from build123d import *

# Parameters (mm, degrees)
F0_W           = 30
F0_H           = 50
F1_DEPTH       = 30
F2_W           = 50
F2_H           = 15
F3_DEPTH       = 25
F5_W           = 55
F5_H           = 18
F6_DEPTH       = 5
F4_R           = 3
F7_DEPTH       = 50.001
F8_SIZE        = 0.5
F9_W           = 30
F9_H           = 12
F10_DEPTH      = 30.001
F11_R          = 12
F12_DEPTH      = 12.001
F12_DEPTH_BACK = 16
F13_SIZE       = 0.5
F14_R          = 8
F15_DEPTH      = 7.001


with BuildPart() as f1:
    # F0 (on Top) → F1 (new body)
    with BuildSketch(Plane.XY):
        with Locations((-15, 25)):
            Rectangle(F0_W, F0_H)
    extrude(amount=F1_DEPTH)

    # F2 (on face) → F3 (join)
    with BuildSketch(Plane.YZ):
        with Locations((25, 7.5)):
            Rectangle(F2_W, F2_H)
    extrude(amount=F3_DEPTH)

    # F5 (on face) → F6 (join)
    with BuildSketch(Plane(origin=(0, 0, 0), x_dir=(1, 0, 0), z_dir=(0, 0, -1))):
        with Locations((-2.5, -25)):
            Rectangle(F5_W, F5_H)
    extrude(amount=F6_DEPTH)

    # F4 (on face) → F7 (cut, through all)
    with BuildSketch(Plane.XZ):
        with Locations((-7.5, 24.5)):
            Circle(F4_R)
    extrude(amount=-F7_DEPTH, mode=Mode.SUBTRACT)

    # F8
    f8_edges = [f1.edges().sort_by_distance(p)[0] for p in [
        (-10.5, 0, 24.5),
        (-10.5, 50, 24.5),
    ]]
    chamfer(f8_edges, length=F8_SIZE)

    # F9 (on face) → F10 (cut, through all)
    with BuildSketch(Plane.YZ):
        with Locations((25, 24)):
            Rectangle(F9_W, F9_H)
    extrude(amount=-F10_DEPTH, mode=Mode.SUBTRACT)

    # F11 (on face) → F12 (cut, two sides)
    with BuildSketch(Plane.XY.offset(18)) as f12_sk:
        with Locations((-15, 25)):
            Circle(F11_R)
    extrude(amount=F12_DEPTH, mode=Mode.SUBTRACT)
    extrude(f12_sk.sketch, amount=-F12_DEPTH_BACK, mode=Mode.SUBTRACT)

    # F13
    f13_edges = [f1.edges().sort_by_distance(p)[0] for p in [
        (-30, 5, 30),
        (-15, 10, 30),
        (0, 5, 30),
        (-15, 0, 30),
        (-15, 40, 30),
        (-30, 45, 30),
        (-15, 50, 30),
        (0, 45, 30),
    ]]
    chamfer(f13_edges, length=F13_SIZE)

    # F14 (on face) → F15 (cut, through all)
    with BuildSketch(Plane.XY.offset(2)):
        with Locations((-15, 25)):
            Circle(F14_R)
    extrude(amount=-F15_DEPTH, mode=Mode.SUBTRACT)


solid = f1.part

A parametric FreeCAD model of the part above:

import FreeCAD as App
import Part
import Sketcher

V = App.Vector


def edges_at(feature, points):
    """Names of the edges that pass closest to the given points."""
    edges = feature.Shape.Edges
    near = lambda p: min(range(len(edges)), key=lambda i: edges[i].distToShape(Part.Vertex(*p))[0])
    return sorted({f"Edge{near(p) + 1}" for p in points})


def add_polygon(sketch, points):
    """Adds a closed chain of lines whose ends are joined by coincident constraints."""
    first, n = sketch.GeometryCount, len(points)
    for a, b in zip(points, points[1:] + points[:1]):
        sketch.addGeometry(Part.LineSegment(App.Vector(*a, 0), App.Vector(*b, 0)), False)
    for i in range(n):
        sketch.addConstraint(Sketcher.Constraint("Coincident", first + i, 2, first + (i + 1) % n, 1))

doc = App.newDocument("Part")
params = doc.addObject("Spreadsheet::Sheet", "Params")
for row, (alias, value) in enumerate([
    ("sketch1_width", "30 mm"),
    ("sketch1_height", "50 mm"),
    ("pad1_length", "30 mm"),
    ("sketch2_width", "50 mm"),
    ("sketch2_height", "15 mm"),
    ("pad2_length", "25 mm"),
    ("sketch3_width", "55 mm"),
    ("sketch3_height", "18 mm"),
    ("pad3_length", "5 mm"),
    ("sketch4_diameter", "6 mm"),
    ("chamfer_size", "0.5 mm"),
    ("sketch5_width", "30 mm"),
    ("sketch5_height", "12 mm"),
    ("sketch6_diameter", "24 mm"),
    ("pocket3_length", "12.001 mm"),
    ("pocket3_length2", "16 mm"),
    ("chamfer2_size", "0.5 mm"),
    ("sketch7_diameter", "16 mm"),
], start=1):
    params.set(f"A{row}", alias)
    params.set(f"B{row}", "=" + value)
    params.setAlias(f"B{row}", alias)

body = doc.addObject("PartDesign::Body", "Body")

sketch1 = body.newObject("Sketcher::SketchObject", "Sketch")
sketch1.AttachmentSupport = (doc.getObject("XY_Plane"), [""])
sketch1.MapMode = "FlatFace"
add_polygon(sketch1, [(-30, 50), (-30, 0), (0, 0), (0, 50)])
sketch1.addConstraint([
    Sketcher.Constraint("Vertical", 0),
    Sketcher.Constraint("Horizontal", 1),
    Sketcher.Constraint("Vertical", 2),
    Sketcher.Constraint("Horizontal", 3),
    Sketcher.Constraint("Coincident", 1, 2, -1, 1),
    Sketcher.Constraint("DistanceX", 1, 1, 1, 2, 30.0),
    Sketcher.Constraint("DistanceY", 0, 2, 0, 1, 50.0),
])
sketch1.setExpression("Constraints[9]", "Params.sketch1_width")
sketch1.setExpression("Constraints[10]", "Params.sketch1_height")
pad1 = body.newObject("PartDesign::Pad", "Pad")
pad1.Profile = sketch1
pad1.setExpression("Length", "Params.pad1_length")

sketch2 = body.newObject("Sketcher::SketchObject", "Sketch001")
sketch2.AttachmentSupport = (doc.getObject("YZ_Plane"), [""])
sketch2.MapMode = "FlatFace"
add_polygon(sketch2, [(0, 15), (0, 0), (50, 0), (50, 15)])
sketch2.addConstraint([
    Sketcher.Constraint("Vertical", 0),
    Sketcher.Constraint("Horizontal", 1),
    Sketcher.Constraint("Vertical", 2),
    Sketcher.Constraint("Horizontal", 3),
    Sketcher.Constraint("Coincident", 0, 2, -1, 1),
    Sketcher.Constraint("DistanceX", 1, 1, 1, 2, 50.0),
    Sketcher.Constraint("DistanceY", 0, 2, 0, 1, 15.0),
])
sketch2.setExpression("Constraints[9]", "Params.sketch2_width")
sketch2.setExpression("Constraints[10]", "Params.sketch2_height")
pad2 = body.newObject("PartDesign::Pad", "Pad001")
pad2.Profile = sketch2
pad2.setExpression("Length", "Params.pad2_length")

sketch3 = body.newObject("Sketcher::SketchObject", "Sketch002")
sketch3.AttachmentSupport = (doc.getObject("XY_Plane"), [""])
sketch3.MapMode = "FlatFace"
add_polygon(sketch3, [(-30, 16), (-30, 34), (25, 34), (25, 16)])
sketch3.addConstraint([
    Sketcher.Constraint("Vertical", 0),
    Sketcher.Constraint("Horizontal", 1),
    Sketcher.Constraint("Vertical", 2),
    Sketcher.Constraint("Horizontal", 3),
    Sketcher.Constraint("DistanceX", 1, 1, 1, 2, 55.0),
    Sketcher.Constraint("DistanceY", 0, 1, 0, 2, 18.0),
    Sketcher.Constraint("DistanceX", 0, 2, -1, 1, 30.0),
    Sketcher.Constraint("DistanceY", -1, 1, 0, 2, 34.0),
])
sketch3.setExpression("Constraints[8]", "Params.sketch3_width")
sketch3.setExpression("Constraints[9]", "Params.sketch3_height")
pad3 = body.newObject("PartDesign::Pad", "Pad002")
pad3.Profile = sketch3
pad3.setExpression("Length", "Params.pad3_length")
pad3.Reversed = True

sketch4 = body.newObject("Sketcher::SketchObject", "Sketch003")
sketch4.AttachmentSupport = (doc.getObject("XZ_Plane"), [""])
sketch4.MapMode = "FlatFace"
sketch4.addGeometry(Part.Circle(V(-7.5, 24.5, 0), V(0, 0, 1), 3), False)
sketch4.addConstraint([
    Sketcher.Constraint("Diameter", 0, 6.0),
    Sketcher.Constraint("DistanceX", 0, 3, -1, 1, 7.5),
    Sketcher.Constraint("DistanceY", -1, 1, 0, 3, 24.5),
])
sketch4.setExpression("Constraints[0]", "Params.sketch4_diameter")
pocket1 = body.newObject("PartDesign::Pocket", "Pocket")
pocket1.Profile = sketch4
pocket1.Type = "ThroughAll"
doc.recompute()

chamfer = body.newObject("PartDesign::Chamfer", "Chamfer")
chamfer.Base = (pocket1, edges_at(pocket1, [(-10.5, 0, 24.5), (-10.5, 50, 24.5)]))
chamfer.setExpression("Size", "Params.chamfer_size")

sketch5 = body.newObject("Sketcher::SketchObject", "Sketch004")
sketch5.AttachmentSupport = (doc.getObject("YZ_Plane"), [""])
sketch5.MapMode = "FlatFace"
add_polygon(sketch5, [(10, 30), (10, 18), (40, 18), (40, 30)])
sketch5.addConstraint([
    Sketcher.Constraint("Vertical", 0),
    Sketcher.Constraint("Horizontal", 1),
    Sketcher.Constraint("Vertical", 2),
    Sketcher.Constraint("Horizontal", 3),
    Sketcher.Constraint("DistanceX", 1, 1, 1, 2, 30.0),
    Sketcher.Constraint("DistanceY", 0, 2, 0, 1, 12.0),
    Sketcher.Constraint("DistanceX", -1, 1, 0, 2, 10.0),
    Sketcher.Constraint("DistanceY", -1, 1, 0, 2, 18.0),
])
sketch5.setExpression("Constraints[8]", "Params.sketch5_width")
sketch5.setExpression("Constraints[9]", "Params.sketch5_height")
pocket2 = body.newObject("PartDesign::Pocket", "Pocket001")
pocket2.Profile = sketch5
pocket2.Type = "ThroughAll"

sketch6 = body.newObject("Sketcher::SketchObject", "Sketch005")
sketch6.AttachmentSupport = (doc.getObject("XY_Plane"), [""])
sketch6.MapMode = "FlatFace"
sketch6.AttachmentOffset = App.Placement(V(0, 0, 18), App.Rotation())
sketch6.addGeometry(Part.Circle(V(-15, 25, 0), V(0, 0, 1), 12), False)
sketch6.addConstraint([
    Sketcher.Constraint("Diameter", 0, 24.0),
    Sketcher.Constraint("DistanceX", 0, 3, -1, 1, 15.0),
    Sketcher.Constraint("DistanceY", -1, 1, 0, 3, 25.0),
])
sketch6.setExpression("Constraints[0]", "Params.sketch6_diameter")
pocket3 = body.newObject("PartDesign::Pocket", "Pocket002")
pocket3.Profile = sketch6
pocket3.Type = "TwoLengths"
pocket3.setExpression("Length", "Params.pocket3_length")
pocket3.setExpression("Length2", "Params.pocket3_length2")
pocket3.Reversed = True
doc.recompute()

chamfer2 = body.newObject("PartDesign::Chamfer", "Chamfer001")
chamfer2.Base = (pocket3, edges_at(pocket3, [
    (-30, 5, 30),
    (-15, 10, 30),
    (0, 5, 30),
    (-15, 0, 30),
    (-15, 40, 30),
    (-30, 45, 30),
    (-15, 50, 30),
    (0, 45, 30),
]))
chamfer2.setExpression("Size", "Params.chamfer2_size")

sketch7 = body.newObject("Sketcher::SketchObject", "Sketch006")
sketch7.AttachmentSupport = (doc.getObject("XY_Plane"), [""])
sketch7.MapMode = "FlatFace"
sketch7.AttachmentOffset = App.Placement(V(0, 0, 2), App.Rotation())
sketch7.addGeometry(Part.Circle(V(-15, 25, 0), V(0, 0, 1), 8), False)
sketch7.addConstraint([
    Sketcher.Constraint("Diameter", 0, 16.0),
    Sketcher.Constraint("DistanceX", 0, 3, -1, 1, 15.0),
    Sketcher.Constraint("DistanceY", -1, 1, 0, 3, 25.0),
])
sketch7.setExpression("Constraints[0]", "Params.sketch7_diameter")
pocket4 = body.newObject("PartDesign::Pocket", "Pocket003")
pocket4.Profile = sketch7
pocket4.Type = "ThroughAll"

doc.recompute()
